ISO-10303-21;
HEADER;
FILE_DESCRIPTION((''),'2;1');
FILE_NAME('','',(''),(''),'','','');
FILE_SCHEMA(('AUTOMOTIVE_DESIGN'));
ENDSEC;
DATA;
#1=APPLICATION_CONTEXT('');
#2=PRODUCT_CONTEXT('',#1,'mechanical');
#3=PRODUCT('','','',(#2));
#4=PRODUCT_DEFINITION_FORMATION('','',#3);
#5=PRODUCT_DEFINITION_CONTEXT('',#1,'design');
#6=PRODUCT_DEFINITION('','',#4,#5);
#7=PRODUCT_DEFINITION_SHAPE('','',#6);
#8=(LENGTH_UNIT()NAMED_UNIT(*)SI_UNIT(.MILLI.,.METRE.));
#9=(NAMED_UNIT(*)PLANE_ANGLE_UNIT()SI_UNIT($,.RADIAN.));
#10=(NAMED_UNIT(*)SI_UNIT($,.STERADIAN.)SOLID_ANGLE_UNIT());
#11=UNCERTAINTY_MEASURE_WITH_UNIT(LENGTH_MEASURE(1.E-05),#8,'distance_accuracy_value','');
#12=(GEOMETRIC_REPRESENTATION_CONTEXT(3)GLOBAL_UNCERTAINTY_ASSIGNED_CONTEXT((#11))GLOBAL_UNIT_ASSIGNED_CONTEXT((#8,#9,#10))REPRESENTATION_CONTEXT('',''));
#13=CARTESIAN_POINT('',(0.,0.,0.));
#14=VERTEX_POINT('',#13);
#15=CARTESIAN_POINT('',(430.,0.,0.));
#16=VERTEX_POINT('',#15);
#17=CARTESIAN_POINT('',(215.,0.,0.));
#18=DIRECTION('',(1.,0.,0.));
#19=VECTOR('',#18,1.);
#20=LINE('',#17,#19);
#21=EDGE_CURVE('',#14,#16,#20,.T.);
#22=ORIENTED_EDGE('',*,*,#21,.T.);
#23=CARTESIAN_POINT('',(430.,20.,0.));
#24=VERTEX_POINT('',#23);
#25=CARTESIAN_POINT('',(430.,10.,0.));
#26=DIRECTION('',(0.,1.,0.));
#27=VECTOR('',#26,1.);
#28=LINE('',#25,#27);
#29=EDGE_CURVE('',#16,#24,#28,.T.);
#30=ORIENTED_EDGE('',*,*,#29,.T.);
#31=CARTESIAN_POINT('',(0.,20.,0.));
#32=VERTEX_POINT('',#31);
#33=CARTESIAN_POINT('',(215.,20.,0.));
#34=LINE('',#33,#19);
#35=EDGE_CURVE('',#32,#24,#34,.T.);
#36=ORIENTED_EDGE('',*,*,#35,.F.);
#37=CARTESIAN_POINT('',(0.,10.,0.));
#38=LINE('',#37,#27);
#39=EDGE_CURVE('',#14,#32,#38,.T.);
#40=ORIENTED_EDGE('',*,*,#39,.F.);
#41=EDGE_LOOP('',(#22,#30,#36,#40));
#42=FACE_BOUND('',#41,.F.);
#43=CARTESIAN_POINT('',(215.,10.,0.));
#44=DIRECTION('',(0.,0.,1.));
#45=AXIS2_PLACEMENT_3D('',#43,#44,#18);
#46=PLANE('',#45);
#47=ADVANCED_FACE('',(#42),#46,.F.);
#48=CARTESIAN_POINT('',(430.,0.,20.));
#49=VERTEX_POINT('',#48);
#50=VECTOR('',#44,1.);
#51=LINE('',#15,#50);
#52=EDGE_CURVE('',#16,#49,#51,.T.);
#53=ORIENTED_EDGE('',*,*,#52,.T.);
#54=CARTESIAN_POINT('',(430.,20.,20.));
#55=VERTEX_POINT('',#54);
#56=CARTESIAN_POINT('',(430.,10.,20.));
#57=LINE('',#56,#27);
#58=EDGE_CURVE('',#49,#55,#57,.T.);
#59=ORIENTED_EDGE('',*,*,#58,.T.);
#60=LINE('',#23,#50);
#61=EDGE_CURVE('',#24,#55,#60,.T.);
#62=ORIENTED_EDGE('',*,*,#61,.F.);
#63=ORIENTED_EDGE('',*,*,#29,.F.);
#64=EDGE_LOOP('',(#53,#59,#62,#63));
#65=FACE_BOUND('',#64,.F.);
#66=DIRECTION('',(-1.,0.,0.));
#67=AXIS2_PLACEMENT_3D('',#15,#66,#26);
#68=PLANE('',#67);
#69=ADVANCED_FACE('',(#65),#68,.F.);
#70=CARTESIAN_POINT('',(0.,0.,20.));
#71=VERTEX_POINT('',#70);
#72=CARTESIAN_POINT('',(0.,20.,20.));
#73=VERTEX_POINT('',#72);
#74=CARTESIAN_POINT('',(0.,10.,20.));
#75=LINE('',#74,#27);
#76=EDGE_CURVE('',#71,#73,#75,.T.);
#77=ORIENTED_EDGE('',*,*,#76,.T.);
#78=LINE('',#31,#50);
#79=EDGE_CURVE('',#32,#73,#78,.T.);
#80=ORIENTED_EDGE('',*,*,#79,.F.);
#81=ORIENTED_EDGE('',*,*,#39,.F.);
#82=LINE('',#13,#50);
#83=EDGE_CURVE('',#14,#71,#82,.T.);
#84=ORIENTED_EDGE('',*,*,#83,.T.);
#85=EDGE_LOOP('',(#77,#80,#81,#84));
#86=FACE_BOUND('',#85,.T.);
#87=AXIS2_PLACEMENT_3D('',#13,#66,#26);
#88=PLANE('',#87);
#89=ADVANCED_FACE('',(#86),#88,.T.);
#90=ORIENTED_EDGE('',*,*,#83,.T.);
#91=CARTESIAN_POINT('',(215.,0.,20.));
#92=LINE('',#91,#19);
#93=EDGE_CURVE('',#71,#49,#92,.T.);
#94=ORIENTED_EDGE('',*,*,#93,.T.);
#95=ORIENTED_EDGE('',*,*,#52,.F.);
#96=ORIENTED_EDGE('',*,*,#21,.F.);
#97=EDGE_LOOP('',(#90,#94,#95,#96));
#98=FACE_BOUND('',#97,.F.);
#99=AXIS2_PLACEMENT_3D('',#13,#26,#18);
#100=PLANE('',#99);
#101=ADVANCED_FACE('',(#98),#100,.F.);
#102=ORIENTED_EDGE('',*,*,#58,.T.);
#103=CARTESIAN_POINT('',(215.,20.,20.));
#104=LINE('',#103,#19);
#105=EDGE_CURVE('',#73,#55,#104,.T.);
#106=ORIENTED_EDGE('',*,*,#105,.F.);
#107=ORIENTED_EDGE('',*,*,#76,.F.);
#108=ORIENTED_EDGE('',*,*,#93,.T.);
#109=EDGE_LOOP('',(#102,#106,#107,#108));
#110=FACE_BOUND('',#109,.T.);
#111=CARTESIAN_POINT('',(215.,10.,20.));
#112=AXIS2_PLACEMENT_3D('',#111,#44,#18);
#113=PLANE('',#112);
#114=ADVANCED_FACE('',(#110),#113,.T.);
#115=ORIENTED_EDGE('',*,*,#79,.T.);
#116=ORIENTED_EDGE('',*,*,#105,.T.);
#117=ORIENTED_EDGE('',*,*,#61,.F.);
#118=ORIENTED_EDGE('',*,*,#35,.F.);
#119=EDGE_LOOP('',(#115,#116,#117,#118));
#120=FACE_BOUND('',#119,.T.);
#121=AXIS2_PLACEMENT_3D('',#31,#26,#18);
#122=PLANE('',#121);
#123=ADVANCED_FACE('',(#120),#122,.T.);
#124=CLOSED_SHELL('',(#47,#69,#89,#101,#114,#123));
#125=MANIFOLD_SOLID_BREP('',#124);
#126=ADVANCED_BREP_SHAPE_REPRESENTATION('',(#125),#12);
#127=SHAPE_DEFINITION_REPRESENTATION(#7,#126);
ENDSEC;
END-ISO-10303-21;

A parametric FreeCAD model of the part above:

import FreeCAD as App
import Part
import Sketcher

V = App.Vector
Q = App.Units.Quantity

doc = App.newDocument("Part")
body = doc.addObject("PartDesign::Body", "Body")

sketch1 = doc.addObject("Sketcher::SketchObject", "Sketch")
body.addObject(sketch1)
sketch1.AttachmentSupport = (doc.XY_Plane, [""])
sketch1.MapMode = "FlatFace"
sketch1.addGeometry(Part.LineSegment(V(0, 20, 0), V(0, 0, 0)), False)
sketch1.addGeometry(Part.LineSegment(V(0, 0, 0), V(430, 0, 0)), False)
sketch1.addGeometry(Part.LineSegment(V(430, 0, 0), V(430, 20, 0)), False)
sketch1.addGeometry(Part.LineSegment(V(430, 20, 0), V(0, 20, 0)), False)
sketch1.addConstraint(Sketcher.Constraint("Coincident", 0, 2, 1, 1))
sketch1.addConstraint(Sketcher.Constraint("Coincident", 1, 2, 2, 1))
sketch1.addConstraint(Sketcher.Constraint("Coincident", 2, 2, 3, 1))
sketch1.addConstraint(Sketcher.Constraint("Coincident", 3, 2, 0, 1))
sketch1.addConstraint(Sketcher.Constraint("Vertical", 0))
sketch1.addConstraint(Sketcher.Constraint("Horizontal", 1))
sketch1.addConstraint(Sketcher.Constraint("Vertical", 2))
sketch1.addConstraint(Sketcher.Constraint("Horizontal", 3))
sketch1.addConstraint(Sketcher.Constraint("Coincident", 0, 2, -1, 1))
sketch1.addConstraint(Sketcher.Constraint("DistanceX", 1, 1, 1, 2, Q("430 mm")))
sketch1.addConstraint(Sketcher.Constraint("DistanceY", 0, 2, 0, 1, Q("20 mm")))
pad1 = doc.addObject("PartDesign::Pad", "Pad")
body.addObject(pad1)
pad1.Profile = sketch1
pad1.Length = 20

doc.recompute()
